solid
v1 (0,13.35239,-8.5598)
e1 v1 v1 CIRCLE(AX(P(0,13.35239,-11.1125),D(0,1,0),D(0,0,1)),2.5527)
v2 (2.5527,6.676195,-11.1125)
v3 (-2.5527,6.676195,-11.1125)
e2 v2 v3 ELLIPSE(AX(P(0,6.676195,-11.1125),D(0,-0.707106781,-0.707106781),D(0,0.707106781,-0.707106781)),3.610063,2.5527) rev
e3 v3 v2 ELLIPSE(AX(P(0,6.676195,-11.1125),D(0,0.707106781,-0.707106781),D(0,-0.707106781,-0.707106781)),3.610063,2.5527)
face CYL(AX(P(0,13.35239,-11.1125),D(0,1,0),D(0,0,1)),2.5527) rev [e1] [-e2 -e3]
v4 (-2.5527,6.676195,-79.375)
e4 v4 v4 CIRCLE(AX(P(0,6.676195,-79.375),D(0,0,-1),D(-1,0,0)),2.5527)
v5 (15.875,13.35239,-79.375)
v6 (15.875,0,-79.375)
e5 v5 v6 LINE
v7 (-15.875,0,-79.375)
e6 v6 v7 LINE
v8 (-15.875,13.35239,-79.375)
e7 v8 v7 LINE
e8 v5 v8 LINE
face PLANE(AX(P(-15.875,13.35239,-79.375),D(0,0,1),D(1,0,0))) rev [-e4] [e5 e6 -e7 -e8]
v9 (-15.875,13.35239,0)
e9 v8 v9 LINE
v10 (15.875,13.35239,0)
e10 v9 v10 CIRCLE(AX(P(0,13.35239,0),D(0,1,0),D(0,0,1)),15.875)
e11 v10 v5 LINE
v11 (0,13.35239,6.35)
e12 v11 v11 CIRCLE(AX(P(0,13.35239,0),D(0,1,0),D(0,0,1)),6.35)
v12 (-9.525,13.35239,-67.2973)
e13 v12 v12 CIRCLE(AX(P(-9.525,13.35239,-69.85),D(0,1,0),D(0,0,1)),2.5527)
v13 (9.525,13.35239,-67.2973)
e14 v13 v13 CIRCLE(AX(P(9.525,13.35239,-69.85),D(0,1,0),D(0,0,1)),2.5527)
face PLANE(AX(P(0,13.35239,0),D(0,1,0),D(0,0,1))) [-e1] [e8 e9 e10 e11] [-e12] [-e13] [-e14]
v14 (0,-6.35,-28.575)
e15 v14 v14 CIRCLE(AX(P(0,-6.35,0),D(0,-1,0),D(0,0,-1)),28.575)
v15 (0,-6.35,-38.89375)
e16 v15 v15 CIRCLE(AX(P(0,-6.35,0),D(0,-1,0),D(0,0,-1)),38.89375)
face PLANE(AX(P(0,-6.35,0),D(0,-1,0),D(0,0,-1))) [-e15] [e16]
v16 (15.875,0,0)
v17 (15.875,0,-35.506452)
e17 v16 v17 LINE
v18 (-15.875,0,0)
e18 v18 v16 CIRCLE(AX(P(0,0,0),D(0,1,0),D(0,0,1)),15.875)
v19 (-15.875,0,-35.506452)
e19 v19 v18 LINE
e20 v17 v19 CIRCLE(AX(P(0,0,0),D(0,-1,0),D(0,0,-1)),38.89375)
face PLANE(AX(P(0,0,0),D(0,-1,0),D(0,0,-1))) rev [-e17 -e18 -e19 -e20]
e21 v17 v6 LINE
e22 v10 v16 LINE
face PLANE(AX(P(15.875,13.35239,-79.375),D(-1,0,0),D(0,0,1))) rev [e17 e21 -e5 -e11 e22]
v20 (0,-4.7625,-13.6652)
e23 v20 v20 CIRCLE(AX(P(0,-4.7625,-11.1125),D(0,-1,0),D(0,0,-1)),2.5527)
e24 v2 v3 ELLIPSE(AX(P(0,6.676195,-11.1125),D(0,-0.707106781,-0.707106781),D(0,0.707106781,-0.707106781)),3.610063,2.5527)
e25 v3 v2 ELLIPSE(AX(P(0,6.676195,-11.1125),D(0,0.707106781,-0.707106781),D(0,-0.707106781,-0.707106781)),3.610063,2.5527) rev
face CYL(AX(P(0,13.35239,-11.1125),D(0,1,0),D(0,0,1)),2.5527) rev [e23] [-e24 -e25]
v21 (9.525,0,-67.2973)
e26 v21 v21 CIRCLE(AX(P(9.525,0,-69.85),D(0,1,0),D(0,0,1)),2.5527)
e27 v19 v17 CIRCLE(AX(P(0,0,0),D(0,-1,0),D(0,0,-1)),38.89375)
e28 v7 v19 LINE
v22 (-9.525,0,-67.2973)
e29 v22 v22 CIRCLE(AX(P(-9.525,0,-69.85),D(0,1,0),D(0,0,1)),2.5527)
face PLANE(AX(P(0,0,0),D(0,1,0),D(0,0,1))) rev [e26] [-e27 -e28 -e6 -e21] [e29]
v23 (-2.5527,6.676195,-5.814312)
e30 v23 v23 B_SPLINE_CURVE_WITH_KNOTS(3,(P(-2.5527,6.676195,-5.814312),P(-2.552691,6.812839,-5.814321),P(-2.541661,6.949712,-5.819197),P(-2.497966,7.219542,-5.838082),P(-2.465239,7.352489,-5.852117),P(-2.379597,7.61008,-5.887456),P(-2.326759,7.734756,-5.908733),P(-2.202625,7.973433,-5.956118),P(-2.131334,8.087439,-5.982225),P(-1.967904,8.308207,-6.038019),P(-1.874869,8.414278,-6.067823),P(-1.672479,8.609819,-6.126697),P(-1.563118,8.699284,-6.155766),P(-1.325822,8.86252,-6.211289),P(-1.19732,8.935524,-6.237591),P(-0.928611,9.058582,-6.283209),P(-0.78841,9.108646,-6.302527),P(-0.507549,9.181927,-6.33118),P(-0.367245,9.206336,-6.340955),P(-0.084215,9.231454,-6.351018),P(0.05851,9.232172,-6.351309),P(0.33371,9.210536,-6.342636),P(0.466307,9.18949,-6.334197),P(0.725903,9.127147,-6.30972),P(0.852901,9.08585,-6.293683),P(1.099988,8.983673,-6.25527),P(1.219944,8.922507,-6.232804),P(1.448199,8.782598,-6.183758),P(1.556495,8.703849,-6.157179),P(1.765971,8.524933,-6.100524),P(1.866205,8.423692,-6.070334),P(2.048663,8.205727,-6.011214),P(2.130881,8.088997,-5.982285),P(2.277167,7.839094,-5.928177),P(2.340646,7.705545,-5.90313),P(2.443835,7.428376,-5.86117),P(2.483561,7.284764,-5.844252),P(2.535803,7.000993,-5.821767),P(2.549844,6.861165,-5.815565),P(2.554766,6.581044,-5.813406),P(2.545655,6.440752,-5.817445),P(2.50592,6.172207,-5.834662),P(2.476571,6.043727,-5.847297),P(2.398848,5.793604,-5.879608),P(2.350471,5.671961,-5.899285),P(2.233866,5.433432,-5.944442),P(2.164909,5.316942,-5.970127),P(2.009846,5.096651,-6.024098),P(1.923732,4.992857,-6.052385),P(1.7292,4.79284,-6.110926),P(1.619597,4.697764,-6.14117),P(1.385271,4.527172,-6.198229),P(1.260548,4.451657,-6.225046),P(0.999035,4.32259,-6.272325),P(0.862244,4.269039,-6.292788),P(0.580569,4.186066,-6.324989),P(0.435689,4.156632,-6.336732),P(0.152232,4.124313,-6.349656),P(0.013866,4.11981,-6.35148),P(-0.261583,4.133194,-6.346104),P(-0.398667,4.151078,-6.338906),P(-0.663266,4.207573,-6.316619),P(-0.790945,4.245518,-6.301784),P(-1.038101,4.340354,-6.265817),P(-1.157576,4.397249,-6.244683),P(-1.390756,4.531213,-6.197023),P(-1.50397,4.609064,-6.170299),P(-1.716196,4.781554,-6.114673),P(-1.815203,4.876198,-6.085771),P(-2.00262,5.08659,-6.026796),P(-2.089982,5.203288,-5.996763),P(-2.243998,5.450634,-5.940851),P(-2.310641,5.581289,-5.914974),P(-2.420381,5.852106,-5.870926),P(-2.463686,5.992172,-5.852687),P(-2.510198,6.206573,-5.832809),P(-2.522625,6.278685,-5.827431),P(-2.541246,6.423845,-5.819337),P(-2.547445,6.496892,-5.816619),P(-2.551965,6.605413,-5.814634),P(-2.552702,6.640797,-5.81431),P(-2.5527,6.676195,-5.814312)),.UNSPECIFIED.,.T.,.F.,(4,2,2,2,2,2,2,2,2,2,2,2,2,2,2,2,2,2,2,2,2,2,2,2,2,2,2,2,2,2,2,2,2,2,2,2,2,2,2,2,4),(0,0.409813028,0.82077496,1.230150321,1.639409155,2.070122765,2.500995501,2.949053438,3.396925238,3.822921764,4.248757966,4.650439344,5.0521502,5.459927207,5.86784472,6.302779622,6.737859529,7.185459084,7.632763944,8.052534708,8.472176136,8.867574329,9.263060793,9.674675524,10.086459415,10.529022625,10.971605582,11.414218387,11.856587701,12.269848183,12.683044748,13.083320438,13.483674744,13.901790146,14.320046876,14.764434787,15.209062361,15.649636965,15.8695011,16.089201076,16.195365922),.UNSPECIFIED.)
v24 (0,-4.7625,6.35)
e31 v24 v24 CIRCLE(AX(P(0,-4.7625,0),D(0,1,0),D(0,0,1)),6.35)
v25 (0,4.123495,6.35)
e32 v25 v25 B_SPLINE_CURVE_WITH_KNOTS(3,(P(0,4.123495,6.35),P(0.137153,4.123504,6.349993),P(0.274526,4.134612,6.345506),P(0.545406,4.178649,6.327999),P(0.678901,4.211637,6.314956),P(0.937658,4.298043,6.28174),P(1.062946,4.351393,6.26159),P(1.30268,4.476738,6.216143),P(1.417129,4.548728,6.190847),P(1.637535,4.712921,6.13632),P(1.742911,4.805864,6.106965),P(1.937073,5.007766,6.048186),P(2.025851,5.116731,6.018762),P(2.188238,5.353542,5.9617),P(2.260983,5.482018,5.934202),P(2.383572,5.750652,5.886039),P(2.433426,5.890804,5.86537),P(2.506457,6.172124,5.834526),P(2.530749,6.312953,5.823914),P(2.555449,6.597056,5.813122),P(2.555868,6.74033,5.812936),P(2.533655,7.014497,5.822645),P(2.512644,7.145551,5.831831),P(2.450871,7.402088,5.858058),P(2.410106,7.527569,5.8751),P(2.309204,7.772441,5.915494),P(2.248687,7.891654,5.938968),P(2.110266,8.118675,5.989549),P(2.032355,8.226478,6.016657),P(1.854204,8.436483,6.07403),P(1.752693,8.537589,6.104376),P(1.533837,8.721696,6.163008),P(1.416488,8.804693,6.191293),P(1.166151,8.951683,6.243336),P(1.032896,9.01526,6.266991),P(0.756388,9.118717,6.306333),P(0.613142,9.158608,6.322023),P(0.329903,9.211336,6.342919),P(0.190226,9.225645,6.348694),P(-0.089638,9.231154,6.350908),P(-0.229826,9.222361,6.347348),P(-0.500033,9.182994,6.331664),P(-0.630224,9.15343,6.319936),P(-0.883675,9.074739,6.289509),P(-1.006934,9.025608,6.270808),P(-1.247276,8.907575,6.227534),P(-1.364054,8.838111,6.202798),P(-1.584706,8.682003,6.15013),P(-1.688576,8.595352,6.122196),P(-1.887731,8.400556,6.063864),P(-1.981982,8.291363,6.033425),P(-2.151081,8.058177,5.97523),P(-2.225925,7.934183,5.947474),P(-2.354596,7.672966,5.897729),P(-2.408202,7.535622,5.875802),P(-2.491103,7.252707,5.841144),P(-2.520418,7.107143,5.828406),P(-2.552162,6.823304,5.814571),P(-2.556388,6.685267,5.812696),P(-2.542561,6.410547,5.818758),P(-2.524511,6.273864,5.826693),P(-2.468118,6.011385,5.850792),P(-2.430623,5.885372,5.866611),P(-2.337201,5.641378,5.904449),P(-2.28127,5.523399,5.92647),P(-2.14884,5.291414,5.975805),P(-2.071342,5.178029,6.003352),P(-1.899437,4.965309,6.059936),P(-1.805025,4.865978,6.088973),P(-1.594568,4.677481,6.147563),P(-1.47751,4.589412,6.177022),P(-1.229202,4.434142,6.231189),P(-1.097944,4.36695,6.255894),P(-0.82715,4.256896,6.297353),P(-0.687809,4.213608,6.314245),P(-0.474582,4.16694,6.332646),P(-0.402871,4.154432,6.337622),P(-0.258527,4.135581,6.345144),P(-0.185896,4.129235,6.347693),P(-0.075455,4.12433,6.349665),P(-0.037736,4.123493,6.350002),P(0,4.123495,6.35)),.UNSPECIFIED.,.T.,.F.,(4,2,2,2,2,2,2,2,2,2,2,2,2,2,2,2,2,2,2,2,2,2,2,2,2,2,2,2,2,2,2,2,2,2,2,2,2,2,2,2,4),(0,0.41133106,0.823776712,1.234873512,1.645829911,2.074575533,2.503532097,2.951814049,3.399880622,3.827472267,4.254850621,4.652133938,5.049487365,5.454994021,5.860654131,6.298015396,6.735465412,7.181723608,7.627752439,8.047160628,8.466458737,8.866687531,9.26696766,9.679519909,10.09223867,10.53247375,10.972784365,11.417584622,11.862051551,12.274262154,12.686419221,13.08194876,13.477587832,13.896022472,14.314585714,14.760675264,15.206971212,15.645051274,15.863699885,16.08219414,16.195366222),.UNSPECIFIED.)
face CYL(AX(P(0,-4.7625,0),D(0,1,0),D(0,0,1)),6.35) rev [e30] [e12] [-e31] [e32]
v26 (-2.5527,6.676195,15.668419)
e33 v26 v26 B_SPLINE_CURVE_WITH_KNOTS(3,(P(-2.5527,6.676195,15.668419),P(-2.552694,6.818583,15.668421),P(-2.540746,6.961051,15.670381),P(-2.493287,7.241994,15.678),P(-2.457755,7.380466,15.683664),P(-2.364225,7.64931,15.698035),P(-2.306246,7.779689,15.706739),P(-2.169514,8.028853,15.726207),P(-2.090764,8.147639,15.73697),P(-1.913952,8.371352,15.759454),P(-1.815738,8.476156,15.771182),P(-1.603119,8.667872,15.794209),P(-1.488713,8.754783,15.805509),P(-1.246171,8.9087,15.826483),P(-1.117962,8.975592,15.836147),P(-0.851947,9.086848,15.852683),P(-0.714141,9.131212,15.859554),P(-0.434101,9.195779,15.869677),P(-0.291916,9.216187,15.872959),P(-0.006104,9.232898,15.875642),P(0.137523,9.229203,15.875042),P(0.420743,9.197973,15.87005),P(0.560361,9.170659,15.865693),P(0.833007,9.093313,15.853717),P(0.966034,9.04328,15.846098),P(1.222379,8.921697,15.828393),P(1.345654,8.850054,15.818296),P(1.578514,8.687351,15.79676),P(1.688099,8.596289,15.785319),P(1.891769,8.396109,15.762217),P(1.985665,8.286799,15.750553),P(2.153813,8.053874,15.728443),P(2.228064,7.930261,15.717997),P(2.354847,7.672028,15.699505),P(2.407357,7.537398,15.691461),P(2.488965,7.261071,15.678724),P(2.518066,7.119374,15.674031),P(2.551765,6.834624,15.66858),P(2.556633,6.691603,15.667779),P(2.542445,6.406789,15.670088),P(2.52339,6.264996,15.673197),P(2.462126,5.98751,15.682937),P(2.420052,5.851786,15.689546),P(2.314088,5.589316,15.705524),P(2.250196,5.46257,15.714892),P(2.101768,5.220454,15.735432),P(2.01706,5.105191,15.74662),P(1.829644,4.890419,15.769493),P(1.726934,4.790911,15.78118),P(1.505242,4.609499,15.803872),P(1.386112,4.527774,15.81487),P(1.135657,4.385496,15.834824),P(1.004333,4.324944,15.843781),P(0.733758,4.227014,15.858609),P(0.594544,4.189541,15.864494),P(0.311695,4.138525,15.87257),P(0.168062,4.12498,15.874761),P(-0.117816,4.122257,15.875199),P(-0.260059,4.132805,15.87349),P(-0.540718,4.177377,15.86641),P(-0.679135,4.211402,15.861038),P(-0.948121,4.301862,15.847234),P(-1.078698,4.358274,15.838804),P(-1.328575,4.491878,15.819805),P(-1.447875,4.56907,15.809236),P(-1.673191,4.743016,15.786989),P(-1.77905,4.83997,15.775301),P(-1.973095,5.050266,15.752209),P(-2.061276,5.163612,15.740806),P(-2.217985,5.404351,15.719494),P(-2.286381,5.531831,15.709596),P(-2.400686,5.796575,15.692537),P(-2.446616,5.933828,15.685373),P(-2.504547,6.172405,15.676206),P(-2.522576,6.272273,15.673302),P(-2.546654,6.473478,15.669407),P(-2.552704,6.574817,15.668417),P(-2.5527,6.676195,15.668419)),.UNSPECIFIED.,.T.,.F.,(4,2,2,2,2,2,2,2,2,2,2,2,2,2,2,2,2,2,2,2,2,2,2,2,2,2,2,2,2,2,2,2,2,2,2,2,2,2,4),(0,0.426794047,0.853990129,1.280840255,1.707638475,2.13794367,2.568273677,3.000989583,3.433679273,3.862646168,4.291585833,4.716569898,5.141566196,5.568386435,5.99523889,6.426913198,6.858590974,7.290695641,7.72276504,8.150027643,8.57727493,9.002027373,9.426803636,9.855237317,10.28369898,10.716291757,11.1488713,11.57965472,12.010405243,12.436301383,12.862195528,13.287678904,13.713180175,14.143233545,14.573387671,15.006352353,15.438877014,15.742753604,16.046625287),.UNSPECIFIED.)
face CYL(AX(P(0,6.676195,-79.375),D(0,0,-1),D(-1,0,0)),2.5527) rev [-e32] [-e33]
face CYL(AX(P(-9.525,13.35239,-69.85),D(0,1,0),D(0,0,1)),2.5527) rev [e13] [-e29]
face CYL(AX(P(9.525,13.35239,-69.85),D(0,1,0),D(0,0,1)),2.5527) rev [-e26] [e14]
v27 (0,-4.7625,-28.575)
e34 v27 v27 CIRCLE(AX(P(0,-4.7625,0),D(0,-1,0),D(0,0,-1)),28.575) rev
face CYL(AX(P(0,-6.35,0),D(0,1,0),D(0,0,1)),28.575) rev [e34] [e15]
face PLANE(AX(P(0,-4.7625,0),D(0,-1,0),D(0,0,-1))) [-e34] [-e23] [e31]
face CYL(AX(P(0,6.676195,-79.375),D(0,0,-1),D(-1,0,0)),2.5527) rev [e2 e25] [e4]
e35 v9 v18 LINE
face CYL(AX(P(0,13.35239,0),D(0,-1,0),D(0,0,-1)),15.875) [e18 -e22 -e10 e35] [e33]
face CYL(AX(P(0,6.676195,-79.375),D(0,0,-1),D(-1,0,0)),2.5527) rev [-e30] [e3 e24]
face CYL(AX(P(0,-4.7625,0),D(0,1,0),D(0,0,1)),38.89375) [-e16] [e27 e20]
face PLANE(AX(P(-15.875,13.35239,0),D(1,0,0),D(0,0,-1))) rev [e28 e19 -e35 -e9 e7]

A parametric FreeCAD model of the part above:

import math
import FreeCAD as App
import Part
import Sketcher

V = App.Vector
Q = App.Units.Quantity

doc = App.newDocument("Part")
body = doc.addObject("PartDesign::Body", "Body")

# Sketch on XZ plane
sketch1 = doc.addObject("Sketcher::SketchObject", "Sketch")
body.addObject(sketch1)
sketch1.AttachmentSupport = (doc.XZ_Plane, [""])
sketch1.MapMode = "FlatFace"
sketch1.addGeometry([
    Part.LineSegment(V(-16, -79, 0), V(-16, 0, 0)),
    Part.ArcOfCircle(Part.Circle(V(0, 0, 0), V(0, 0, 1), 16), math.radians(0), math.radians(180)),
    Part.LineSegment(V(16, 0, 0), V(16, -79, 0)),
    Part.LineSegment(V(16, -79, 0), V(-16, -79, 0)),
], False)
sketch1.addConstraint([
    Sketcher.Constraint("Tangent", 0, 2, 1, 2),
    Sketcher.Constraint("Tangent", 1, 1, 2, 1),
    Sketcher.Constraint("Coincident", 2, 2, 3, 1),
    Sketcher.Constraint("Coincident", 3, 2, 0, 1),
    Sketcher.Constraint("Vertical", 0),
    Sketcher.Constraint("Vertical", 2),
    Sketcher.Constraint("Horizontal", 3),
    Sketcher.Constraint("Coincident", 1, 3, -1, 1),
    Sketcher.Constraint("Radius", 1, Q("0.625 in")),
    Sketcher.Constraint("DistanceY", 0, 1, 0, 2, Q("3.125 in")),
])
pad1 = doc.addObject("PartDesign::Pad", "Pad")
body.addObject(pad1)
pad1.Profile = sketch1
pad1.Length = 13.35239
pad1.Reversed = True

# Sketch on XZ plane
sketch2 = doc.addObject("Sketcher::SketchObject", "Sketch001")
body.addObject(sketch2)
sketch2.AttachmentSupport = (doc.XZ_Plane, [""])
sketch2.MapMode = "FlatFace"
sketch2.addGeometry(Part.Circle(V(0, 0, 0), V(0, 0, 1), 39), False)
sketch2.addConstraint([
    Sketcher.Constraint("Coincident", 0, 3, -1, 1),
    Sketcher.Constraint("Diameter", 0, Q("3.0625 in")),
])
pad2 = doc.addObject("PartDesign::Pad", "Pad001")
body.addObject(pad2)
pad2.Profile = sketch2
pad2.Length = Q("0.1875 in")

# Sketch on XZ plane
sketch3 = doc.addObject("Sketcher::SketchObject", "Sketch002")
body.addObject(sketch3)
sketch3.AttachmentSupport = (doc.XZ_Plane, [""])
sketch3.MapMode = "FlatFace"
sketch3.AttachmentOffset = App.Placement(V(0, 0, -13.35239), App.Rotation())
sketch3.addGeometry(Part.Circle(V(0, 0, 0), V(0, 0, 1), 6), False)
sketch3.addConstraint([
    Sketcher.Constraint("Coincident", 0, 3, -1, 1),
    Sketcher.Constraint("Diameter", 0, Q("0.5 in")),
])
pocket1 = doc.addObject("PartDesign::Pocket", "Pocket")
body.addObject(pocket1)
pocket1.Profile = sketch3
pocket1.Type = "ThroughAll"
pocket1.Midplane = True

# Sketch on XZ plane
sketch4 = doc.addObject("Sketcher::SketchObject", "Sketch003")
body.addObject(sketch4)
sketch4.AttachmentSupport = (doc.XZ_Plane, [""])
sketch4.MapMode = "FlatFace"
sketch4.AttachmentOffset = App.Placement(V(0, 0, 0.1875 * 25.4), App.Rotation())
sketch4.addGeometry([
    Part.Circle(V(0, 0, 0), V(0, 0, 1), 39),
    Part.Circle(V(0, 0, 0), V(0, 0, 1), 29),
], False)
sketch4.addConstraint([
    Sketcher.Constraint("Coincident", 0, 3, -1, 1),
    Sketcher.Constraint("Coincident", 1, 3, -1, 1),
    Sketcher.Constraint("Diameter", 1, Q("2.25 in")),
    Sketcher.Constraint("Diameter", 0, Q("3.0625 in")),
])
pad3 = doc.addObject("PartDesign::Pad", "Pad002")
body.addObject(pad3)
pad3.Profile = sketch4
pad3.Length = Q("0.0625 in")

# Sketch on XY plane
sketch5 = doc.addObject("Sketcher::SketchObject", "Sketch004")
body.addObject(sketch5)
sketch5.AttachmentSupport = (doc.XY_Plane, [""])
sketch5.MapMode = "FlatFace"
sketch5.AttachmentOffset = App.Placement(V(0, 0, -3.125 * 25.4), App.Rotation())
sketch5.addGeometry(Part.Circle(V(0, 6.7, 0), V(0, 0, 1), 2.6), False)
sketch5.addConstraint([
    Sketcher.Constraint("PointOnObject", 0, 3, -2),
    Sketcher.Constraint("Diameter", 0, Q("0.201 in")),
    Sketcher.Constraint("DistanceY", -1, 1, 0, 3, Q("6.676195 mm")),
])
doc.recompute()
hole = doc.addObject("PartDesign::Hole", "Hole")
body.addObject(hole)
hole.Profile = sketch5
hole.ThreadType = "None"
hole.Diameter = Q("0.201 in")
hole.DepthType = "ThroughAll"
hole.Reversed = True

# Sketch on XZ plane
sketch6 = doc.addObject("Sketcher::SketchObject", "Sketch005")
body.addObject(sketch6)
sketch6.AttachmentSupport = (doc.XZ_Plane, [""])
sketch6.MapMode = "FlatFace"
sketch6.AttachmentOffset = App.Placement(V(0, 0, -13.35239), App.Rotation())
sketch6.addGeometry([
    Part.Circle(V(-9.5, -69.8, 0), V(0, 0, 1), 2.6),
    Part.Circle(V(9.5, -69.8, 0), V(0, 0, 1), 2.6),
    Part.Circle(V(0, -11.1, 0), V(0, 0, 1), 2.6),
], False)
sketch6.addConstraint([
    Sketcher.Constraint("Equal", 0, 1),
    Sketcher.Constraint("Equal", 1, 2),
    Sketcher.Constraint("Symmetric", 0, 3, 1, 3, -2),
    Sketcher.Constraint("PointOnObject", 2, 3, -2),
    Sketcher.Constraint("Diameter", 0, Q("0.201 in")),
    Sketcher.Constraint("DistanceY", 0, 3, -1, 1, Q("2.75 in")),
    Sketcher.Constraint("DistanceX", 0, 3, 1, 3, Q("0.75 in")),
    Sketcher.Constraint("DistanceY", 2, 3, -1, 1, Q("0.4375 in")),
])
doc.recompute()
hole2 = doc.addObject("PartDesign::Hole", "Hole001")
body.addObject(hole2)
hole2.Profile = sketch6
hole2.ThreadType = "None"
hole2.Diameter = Q("0.201 in")
hole2.DepthType = "Dimension"
hole2.Depth = Q("4.6563 in")
hole2.DrillPoint = "Angled"
hole2.DrillPointAngle = 118
hole2.Reversed = True

doc.recompute()
